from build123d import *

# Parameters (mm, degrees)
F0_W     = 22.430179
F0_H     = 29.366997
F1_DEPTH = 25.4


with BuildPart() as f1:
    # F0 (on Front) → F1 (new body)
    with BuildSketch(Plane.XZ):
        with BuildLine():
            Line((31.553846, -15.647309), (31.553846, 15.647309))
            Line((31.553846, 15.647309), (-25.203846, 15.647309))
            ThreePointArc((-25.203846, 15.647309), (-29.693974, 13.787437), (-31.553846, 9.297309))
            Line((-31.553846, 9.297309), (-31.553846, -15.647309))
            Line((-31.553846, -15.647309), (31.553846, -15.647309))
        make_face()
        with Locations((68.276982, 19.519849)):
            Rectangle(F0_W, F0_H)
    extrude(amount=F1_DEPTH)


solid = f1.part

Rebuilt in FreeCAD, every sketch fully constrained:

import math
import FreeCAD as App
import Part
import Sketcher
from FreeCAD import Vector
Q = App.Units.Quantity

doc = App.newDocument("Part")
body = doc.addObject("PartDesign::Body", "Body")
body.AllowCompound = True

sketch1 = doc.addObject("Sketcher::SketchObject", "Sketch")
body.addObject(sketch1)
sketch1.AttachmentSupport = (doc.XZ_Plane, [""])
sketch1.MapMode = "FlatFace"
sketch1.addGeometry(Part.LineSegment(Vector(32, -16, 0), Vector(32, 16, 0)), False)
sketch1.addGeometry(Part.LineSegment(Vector(32, 16, 0), Vector(-25, 16, 0)), False)
sketch1.addGeometry(Part.ArcOfCircle(Part.Circle(Vector(-25, 9, 0), Vector(0, 0, 1), 6), math.radians(90), math.radians(180)), False)
sketch1.addGeometry(Part.LineSegment(Vector(-32, 9, 0), Vector(-32, -16, 0)), False)
sketch1.addGeometry(Part.LineSegment(Vector(-32, -16, 0), Vector(32, -16, 0)), False)
sketch1.addGeometry(Part.LineSegment(Vector(57, 34, 0), Vector(57, 5, 0)), False)
sketch1.addGeometry(Part.LineSegment(Vector(57, 5, 0), Vector(79, 5, 0)), False)
sketch1.addGeometry(Part.LineSegment(Vector(79, 5, 0), Vector(79, 34, 0)), False)
sketch1.addGeometry(Part.LineSegment(Vector(79, 34, 0), Vector(57, 34, 0)), False)
sketch1.addConstraint(Sketcher.Constraint("Coincident", 0, 2, 1, 1))
sketch1.addConstraint(Sketcher.Constraint("Tangent", 1, 2, 2, 1))
sketch1.addConstraint(Sketcher.Constraint("Tangent", 2, 2, 3, 1))
sketch1.addConstraint(Sketcher.Constraint("Coincident", 3, 2, 4, 1))
sketch1.addConstraint(Sketcher.Constraint("Coincident", 4, 2, 0, 1))
sketch1.addConstraint(Sketcher.Constraint("Coincident", 5, 2, 6, 1))
sketch1.addConstraint(Sketcher.Constraint("Coincident", 6, 2, 7, 1))
sketch1.addConstraint(Sketcher.Constraint("Coincident", 7, 2, 8, 1))
sketch1.addConstraint(Sketcher.Constraint("Coincident", 8, 2, 5, 1))
sketch1.addConstraint(Sketcher.Constraint("Vertical", 0))
sketch1.addConstraint(Sketcher.Constraint("Horizontal", 1))
sketch1.addConstraint(Sketcher.Constraint("Vertical", 3))
sketch1.addConstraint(Sketcher.Constraint("Horizontal", 4))
sketch1.addConstraint(Sketcher.Constraint("Vertical", 5))
sketch1.addConstraint(Sketcher.Constraint("Horizontal", 6))
sketch1.addConstraint(Sketcher.Constraint("Vertical", 7))
sketch1.addConstraint(Sketcher.Constraint("Horizontal", 8))
sketch1.addConstraint(Sketcher.Constraint("Symmetric", 0, 2, 3, 2, -1, 1))
sketch1.addConstraint(Sketcher.Constraint("Radius", 2, Q("0.25 in")))
sketch1.addConstraint(Sketcher.Constraint("DistanceX", 6, 1, 6, 2, 22.430179))
sketch1.addConstraint(Sketcher.Constraint("DistanceY", 0, 1, 0, 2, 31.294618))
sketch1.addConstraint(Sketcher.Constraint("DistanceX", 1, 2, 1, 1, 56.757692))
sketch1.addConstraint(Sketcher.Constraint("DistanceY", 5, 2, 5, 1, 29.366997))
sketch1.addConstraint(Sketcher.Constraint("DistanceY", -1, 1, 5, 2, 4.83635))
sketch1.addConstraint(Sketcher.Constraint("DistanceX", -1, 1, 6, 2, 79.492071))
pad1 = doc.addObject("PartDesign::Pad", "Pad")
body.addObject(pad1)
pad1.Profile = sketch1
pad1.Length = Q("1 in")

doc.recompute()
